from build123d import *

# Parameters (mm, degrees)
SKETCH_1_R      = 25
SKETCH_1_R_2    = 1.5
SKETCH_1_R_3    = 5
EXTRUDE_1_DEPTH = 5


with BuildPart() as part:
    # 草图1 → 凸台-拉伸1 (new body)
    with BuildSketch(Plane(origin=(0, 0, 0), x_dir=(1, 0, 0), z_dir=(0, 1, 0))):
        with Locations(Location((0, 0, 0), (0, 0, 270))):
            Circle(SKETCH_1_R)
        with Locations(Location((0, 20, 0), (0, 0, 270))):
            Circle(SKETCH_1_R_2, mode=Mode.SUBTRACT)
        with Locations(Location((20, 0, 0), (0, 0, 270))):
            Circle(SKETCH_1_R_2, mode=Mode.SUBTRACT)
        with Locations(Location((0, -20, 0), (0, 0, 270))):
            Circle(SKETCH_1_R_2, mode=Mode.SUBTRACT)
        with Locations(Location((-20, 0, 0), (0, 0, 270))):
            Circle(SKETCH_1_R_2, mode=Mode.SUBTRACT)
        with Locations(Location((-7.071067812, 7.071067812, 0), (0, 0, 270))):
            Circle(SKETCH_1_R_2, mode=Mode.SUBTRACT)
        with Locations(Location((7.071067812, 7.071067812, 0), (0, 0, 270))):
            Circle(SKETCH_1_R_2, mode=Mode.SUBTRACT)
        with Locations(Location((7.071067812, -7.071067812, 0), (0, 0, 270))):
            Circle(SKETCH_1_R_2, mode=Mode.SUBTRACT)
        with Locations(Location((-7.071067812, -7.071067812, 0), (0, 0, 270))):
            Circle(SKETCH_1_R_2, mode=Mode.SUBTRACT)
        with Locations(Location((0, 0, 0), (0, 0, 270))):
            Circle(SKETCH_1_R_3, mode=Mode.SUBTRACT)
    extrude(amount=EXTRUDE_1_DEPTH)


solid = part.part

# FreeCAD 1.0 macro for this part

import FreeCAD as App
import Part
import Sketcher

V = App.Vector
Q = App.Units.Quantity

doc = App.newDocument("Part")
body = doc.addObject("PartDesign::Body", "Body")

# Sketch on XZ plane
sketch1 = doc.addObject("Sketcher::SketchObject", "Sketch")
body.addObject(sketch1)
sketch1.AttachmentSupport = (doc.XZ_Plane, [""])
sketch1.MapMode = "FlatFace"
sketch1.addGeometry([
    Part.Circle(V(0, 0, 0), V(0, 0, 1), 25),  # 0
    Part.Circle(V(0, -20, 0), V(0, 0, 1), 1.5),  # 1
    Part.Circle(V(-7.1, -7.1, 0), V(0, 0, 1), 1.5),  # 2
    Part.Circle(V(-20, 0, 0), V(0, 0, 1), 1.5),  # 3
    Part.Circle(V(-7.1, 7.1, 0), V(0, 0, 1), 1.5),  # 4
    Part.Circle(V(7.1, -7.1, 0), V(0, 0, 1), 1.5),  # 5
    Part.Circle(V(20, 0, 0), V(0, 0, 1), 1.5),  # 6
    Part.Circle(V(0, 0, 0), V(0, 0, 1), 5),  # 7
    Part.Circle(V(7.1, 7.1, 0), V(0, 0, 1), 1.5),  # 8
    Part.Circle(V(0, 20, 0), V(0, 0, 1), 1.5),  # 9
], False)
sketch1.addConstraint([
    Sketcher.Constraint("Coincident", 0, 3, -1, 1),
    Sketcher.Constraint("Coincident", 7, 3, -1, 1),
    Sketcher.Constraint("Equal", 1, 2),
    Sketcher.Constraint("Equal", 2, 3),
    Sketcher.Constraint("Equal", 3, 4),
    Sketcher.Constraint("Equal", 4, 5),
    Sketcher.Constraint("Equal", 5, 6),
    Sketcher.Constraint("Equal", 6, 8),
    Sketcher.Constraint("Equal", 8, 9),
    Sketcher.Constraint("Symmetric", 4, 3, 5, 3, -1, 1),
    Sketcher.Constraint("Symmetric", 3, 3, 6, 3, -1, 1),
    Sketcher.Constraint("Symmetric", 2, 3, 8, 3, -1, 1),
    Sketcher.Constraint("Symmetric", 1, 3, 9, 3, -1, 1),
    Sketcher.Constraint("Symmetric", 2, 3, 5, 3, -2),
    Sketcher.Constraint("PointOnObject", 1, 3, -2),
    Sketcher.Constraint("PointOnObject", 3, 3, -1),
    Sketcher.Constraint("Diameter", 0, Q("50 mm")),
    Sketcher.Constraint("Diameter", 1, Q("3 mm")),
    Sketcher.Constraint("Diameter", 7, Q("10 mm")),
    Sketcher.Constraint("DistanceY", 1, 3, -1, 1, Q("20 mm")),
    Sketcher.Constraint("DistanceX", 3, 3, -1, 1, Q("20 mm")),
    Sketcher.Constraint("DistanceX", 2, 3, -1, 1, Q("7.071068 mm")),
    Sketcher.Constraint("DistanceY", 2, 3, -1, 1, Q("7.071068 mm")),
])
pad1 = doc.addObject("PartDesign::Pad", "Pad")
body.addObject(pad1)
pad1.Profile = sketch1
pad1.Length = 5
pad1.Reversed = True

doc.recompute()
